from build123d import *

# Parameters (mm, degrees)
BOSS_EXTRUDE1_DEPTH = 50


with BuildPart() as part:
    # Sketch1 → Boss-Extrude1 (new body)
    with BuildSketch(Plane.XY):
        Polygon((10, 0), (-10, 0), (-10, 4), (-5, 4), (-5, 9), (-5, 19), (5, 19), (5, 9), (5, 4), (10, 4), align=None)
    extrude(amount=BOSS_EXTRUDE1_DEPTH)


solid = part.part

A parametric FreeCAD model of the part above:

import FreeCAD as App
import Part
import Sketcher


def add_polygon(sketch, points):
    """Adds a closed chain of lines whose ends are joined by coincident constraints."""
    first, n = sketch.GeometryCount, len(points)
    for a, b in zip(points, points[1:] + points[:1]):
        sketch.addGeometry(Part.LineSegment(App.Vector(*a, 0), App.Vector(*b, 0)), False)
    for i in range(n):
        sketch.addConstraint(Sketcher.Constraint("Coincident", first + i, 2, first + (i + 1) % n, 1))

doc = App.newDocument("Part")
body = doc.addObject("PartDesign::Body", "Body")

sketch1 = body.newObject("Sketcher::SketchObject", "Sketch")
sketch1.AttachmentSupport = (doc.getObject("XY_Plane"), [""])
sketch1.MapMode = "FlatFace"
add_polygon(sketch1, [(-10, 0), (10, 0), (10, 4), (5, 4), (5, 19), (-5, 19), (-5, 4), (-10, 4)])
sketch1.addConstraint([
    Sketcher.Constraint("Horizontal", 0),
    Sketcher.Constraint("Vertical", 1),
    Sketcher.Constraint("Horizontal", 2),
    Sketcher.Constraint("Vertical", 3),
    Sketcher.Constraint("Horizontal", 4),
    Sketcher.Constraint("Vertical", 5),
    Sketcher.Constraint("Horizontal", 6),
    Sketcher.Constraint("Vertical", 7),
    Sketcher.Constraint("Symmetric", 0, 2, 7, 2, -1, 1),
    Sketcher.Constraint("Symmetric", 2, 2, 5, 2, -2),
    Sketcher.Constraint("DistanceX", 0, 1, 0, 2, 20.0),
    Sketcher.Constraint("DistanceX", 2, 2, 2, 1, 5.0),
    Sketcher.Constraint("DistanceY", 1, 1, 1, 2, 4.0),
    Sketcher.Constraint("DistanceY", 3, 1, 3, 2, 15.0),
])
pad1 = body.newObject("PartDesign::Pad", "Pad")
pad1.Profile = sketch1
pad1.Length = 50

doc.recompute()
